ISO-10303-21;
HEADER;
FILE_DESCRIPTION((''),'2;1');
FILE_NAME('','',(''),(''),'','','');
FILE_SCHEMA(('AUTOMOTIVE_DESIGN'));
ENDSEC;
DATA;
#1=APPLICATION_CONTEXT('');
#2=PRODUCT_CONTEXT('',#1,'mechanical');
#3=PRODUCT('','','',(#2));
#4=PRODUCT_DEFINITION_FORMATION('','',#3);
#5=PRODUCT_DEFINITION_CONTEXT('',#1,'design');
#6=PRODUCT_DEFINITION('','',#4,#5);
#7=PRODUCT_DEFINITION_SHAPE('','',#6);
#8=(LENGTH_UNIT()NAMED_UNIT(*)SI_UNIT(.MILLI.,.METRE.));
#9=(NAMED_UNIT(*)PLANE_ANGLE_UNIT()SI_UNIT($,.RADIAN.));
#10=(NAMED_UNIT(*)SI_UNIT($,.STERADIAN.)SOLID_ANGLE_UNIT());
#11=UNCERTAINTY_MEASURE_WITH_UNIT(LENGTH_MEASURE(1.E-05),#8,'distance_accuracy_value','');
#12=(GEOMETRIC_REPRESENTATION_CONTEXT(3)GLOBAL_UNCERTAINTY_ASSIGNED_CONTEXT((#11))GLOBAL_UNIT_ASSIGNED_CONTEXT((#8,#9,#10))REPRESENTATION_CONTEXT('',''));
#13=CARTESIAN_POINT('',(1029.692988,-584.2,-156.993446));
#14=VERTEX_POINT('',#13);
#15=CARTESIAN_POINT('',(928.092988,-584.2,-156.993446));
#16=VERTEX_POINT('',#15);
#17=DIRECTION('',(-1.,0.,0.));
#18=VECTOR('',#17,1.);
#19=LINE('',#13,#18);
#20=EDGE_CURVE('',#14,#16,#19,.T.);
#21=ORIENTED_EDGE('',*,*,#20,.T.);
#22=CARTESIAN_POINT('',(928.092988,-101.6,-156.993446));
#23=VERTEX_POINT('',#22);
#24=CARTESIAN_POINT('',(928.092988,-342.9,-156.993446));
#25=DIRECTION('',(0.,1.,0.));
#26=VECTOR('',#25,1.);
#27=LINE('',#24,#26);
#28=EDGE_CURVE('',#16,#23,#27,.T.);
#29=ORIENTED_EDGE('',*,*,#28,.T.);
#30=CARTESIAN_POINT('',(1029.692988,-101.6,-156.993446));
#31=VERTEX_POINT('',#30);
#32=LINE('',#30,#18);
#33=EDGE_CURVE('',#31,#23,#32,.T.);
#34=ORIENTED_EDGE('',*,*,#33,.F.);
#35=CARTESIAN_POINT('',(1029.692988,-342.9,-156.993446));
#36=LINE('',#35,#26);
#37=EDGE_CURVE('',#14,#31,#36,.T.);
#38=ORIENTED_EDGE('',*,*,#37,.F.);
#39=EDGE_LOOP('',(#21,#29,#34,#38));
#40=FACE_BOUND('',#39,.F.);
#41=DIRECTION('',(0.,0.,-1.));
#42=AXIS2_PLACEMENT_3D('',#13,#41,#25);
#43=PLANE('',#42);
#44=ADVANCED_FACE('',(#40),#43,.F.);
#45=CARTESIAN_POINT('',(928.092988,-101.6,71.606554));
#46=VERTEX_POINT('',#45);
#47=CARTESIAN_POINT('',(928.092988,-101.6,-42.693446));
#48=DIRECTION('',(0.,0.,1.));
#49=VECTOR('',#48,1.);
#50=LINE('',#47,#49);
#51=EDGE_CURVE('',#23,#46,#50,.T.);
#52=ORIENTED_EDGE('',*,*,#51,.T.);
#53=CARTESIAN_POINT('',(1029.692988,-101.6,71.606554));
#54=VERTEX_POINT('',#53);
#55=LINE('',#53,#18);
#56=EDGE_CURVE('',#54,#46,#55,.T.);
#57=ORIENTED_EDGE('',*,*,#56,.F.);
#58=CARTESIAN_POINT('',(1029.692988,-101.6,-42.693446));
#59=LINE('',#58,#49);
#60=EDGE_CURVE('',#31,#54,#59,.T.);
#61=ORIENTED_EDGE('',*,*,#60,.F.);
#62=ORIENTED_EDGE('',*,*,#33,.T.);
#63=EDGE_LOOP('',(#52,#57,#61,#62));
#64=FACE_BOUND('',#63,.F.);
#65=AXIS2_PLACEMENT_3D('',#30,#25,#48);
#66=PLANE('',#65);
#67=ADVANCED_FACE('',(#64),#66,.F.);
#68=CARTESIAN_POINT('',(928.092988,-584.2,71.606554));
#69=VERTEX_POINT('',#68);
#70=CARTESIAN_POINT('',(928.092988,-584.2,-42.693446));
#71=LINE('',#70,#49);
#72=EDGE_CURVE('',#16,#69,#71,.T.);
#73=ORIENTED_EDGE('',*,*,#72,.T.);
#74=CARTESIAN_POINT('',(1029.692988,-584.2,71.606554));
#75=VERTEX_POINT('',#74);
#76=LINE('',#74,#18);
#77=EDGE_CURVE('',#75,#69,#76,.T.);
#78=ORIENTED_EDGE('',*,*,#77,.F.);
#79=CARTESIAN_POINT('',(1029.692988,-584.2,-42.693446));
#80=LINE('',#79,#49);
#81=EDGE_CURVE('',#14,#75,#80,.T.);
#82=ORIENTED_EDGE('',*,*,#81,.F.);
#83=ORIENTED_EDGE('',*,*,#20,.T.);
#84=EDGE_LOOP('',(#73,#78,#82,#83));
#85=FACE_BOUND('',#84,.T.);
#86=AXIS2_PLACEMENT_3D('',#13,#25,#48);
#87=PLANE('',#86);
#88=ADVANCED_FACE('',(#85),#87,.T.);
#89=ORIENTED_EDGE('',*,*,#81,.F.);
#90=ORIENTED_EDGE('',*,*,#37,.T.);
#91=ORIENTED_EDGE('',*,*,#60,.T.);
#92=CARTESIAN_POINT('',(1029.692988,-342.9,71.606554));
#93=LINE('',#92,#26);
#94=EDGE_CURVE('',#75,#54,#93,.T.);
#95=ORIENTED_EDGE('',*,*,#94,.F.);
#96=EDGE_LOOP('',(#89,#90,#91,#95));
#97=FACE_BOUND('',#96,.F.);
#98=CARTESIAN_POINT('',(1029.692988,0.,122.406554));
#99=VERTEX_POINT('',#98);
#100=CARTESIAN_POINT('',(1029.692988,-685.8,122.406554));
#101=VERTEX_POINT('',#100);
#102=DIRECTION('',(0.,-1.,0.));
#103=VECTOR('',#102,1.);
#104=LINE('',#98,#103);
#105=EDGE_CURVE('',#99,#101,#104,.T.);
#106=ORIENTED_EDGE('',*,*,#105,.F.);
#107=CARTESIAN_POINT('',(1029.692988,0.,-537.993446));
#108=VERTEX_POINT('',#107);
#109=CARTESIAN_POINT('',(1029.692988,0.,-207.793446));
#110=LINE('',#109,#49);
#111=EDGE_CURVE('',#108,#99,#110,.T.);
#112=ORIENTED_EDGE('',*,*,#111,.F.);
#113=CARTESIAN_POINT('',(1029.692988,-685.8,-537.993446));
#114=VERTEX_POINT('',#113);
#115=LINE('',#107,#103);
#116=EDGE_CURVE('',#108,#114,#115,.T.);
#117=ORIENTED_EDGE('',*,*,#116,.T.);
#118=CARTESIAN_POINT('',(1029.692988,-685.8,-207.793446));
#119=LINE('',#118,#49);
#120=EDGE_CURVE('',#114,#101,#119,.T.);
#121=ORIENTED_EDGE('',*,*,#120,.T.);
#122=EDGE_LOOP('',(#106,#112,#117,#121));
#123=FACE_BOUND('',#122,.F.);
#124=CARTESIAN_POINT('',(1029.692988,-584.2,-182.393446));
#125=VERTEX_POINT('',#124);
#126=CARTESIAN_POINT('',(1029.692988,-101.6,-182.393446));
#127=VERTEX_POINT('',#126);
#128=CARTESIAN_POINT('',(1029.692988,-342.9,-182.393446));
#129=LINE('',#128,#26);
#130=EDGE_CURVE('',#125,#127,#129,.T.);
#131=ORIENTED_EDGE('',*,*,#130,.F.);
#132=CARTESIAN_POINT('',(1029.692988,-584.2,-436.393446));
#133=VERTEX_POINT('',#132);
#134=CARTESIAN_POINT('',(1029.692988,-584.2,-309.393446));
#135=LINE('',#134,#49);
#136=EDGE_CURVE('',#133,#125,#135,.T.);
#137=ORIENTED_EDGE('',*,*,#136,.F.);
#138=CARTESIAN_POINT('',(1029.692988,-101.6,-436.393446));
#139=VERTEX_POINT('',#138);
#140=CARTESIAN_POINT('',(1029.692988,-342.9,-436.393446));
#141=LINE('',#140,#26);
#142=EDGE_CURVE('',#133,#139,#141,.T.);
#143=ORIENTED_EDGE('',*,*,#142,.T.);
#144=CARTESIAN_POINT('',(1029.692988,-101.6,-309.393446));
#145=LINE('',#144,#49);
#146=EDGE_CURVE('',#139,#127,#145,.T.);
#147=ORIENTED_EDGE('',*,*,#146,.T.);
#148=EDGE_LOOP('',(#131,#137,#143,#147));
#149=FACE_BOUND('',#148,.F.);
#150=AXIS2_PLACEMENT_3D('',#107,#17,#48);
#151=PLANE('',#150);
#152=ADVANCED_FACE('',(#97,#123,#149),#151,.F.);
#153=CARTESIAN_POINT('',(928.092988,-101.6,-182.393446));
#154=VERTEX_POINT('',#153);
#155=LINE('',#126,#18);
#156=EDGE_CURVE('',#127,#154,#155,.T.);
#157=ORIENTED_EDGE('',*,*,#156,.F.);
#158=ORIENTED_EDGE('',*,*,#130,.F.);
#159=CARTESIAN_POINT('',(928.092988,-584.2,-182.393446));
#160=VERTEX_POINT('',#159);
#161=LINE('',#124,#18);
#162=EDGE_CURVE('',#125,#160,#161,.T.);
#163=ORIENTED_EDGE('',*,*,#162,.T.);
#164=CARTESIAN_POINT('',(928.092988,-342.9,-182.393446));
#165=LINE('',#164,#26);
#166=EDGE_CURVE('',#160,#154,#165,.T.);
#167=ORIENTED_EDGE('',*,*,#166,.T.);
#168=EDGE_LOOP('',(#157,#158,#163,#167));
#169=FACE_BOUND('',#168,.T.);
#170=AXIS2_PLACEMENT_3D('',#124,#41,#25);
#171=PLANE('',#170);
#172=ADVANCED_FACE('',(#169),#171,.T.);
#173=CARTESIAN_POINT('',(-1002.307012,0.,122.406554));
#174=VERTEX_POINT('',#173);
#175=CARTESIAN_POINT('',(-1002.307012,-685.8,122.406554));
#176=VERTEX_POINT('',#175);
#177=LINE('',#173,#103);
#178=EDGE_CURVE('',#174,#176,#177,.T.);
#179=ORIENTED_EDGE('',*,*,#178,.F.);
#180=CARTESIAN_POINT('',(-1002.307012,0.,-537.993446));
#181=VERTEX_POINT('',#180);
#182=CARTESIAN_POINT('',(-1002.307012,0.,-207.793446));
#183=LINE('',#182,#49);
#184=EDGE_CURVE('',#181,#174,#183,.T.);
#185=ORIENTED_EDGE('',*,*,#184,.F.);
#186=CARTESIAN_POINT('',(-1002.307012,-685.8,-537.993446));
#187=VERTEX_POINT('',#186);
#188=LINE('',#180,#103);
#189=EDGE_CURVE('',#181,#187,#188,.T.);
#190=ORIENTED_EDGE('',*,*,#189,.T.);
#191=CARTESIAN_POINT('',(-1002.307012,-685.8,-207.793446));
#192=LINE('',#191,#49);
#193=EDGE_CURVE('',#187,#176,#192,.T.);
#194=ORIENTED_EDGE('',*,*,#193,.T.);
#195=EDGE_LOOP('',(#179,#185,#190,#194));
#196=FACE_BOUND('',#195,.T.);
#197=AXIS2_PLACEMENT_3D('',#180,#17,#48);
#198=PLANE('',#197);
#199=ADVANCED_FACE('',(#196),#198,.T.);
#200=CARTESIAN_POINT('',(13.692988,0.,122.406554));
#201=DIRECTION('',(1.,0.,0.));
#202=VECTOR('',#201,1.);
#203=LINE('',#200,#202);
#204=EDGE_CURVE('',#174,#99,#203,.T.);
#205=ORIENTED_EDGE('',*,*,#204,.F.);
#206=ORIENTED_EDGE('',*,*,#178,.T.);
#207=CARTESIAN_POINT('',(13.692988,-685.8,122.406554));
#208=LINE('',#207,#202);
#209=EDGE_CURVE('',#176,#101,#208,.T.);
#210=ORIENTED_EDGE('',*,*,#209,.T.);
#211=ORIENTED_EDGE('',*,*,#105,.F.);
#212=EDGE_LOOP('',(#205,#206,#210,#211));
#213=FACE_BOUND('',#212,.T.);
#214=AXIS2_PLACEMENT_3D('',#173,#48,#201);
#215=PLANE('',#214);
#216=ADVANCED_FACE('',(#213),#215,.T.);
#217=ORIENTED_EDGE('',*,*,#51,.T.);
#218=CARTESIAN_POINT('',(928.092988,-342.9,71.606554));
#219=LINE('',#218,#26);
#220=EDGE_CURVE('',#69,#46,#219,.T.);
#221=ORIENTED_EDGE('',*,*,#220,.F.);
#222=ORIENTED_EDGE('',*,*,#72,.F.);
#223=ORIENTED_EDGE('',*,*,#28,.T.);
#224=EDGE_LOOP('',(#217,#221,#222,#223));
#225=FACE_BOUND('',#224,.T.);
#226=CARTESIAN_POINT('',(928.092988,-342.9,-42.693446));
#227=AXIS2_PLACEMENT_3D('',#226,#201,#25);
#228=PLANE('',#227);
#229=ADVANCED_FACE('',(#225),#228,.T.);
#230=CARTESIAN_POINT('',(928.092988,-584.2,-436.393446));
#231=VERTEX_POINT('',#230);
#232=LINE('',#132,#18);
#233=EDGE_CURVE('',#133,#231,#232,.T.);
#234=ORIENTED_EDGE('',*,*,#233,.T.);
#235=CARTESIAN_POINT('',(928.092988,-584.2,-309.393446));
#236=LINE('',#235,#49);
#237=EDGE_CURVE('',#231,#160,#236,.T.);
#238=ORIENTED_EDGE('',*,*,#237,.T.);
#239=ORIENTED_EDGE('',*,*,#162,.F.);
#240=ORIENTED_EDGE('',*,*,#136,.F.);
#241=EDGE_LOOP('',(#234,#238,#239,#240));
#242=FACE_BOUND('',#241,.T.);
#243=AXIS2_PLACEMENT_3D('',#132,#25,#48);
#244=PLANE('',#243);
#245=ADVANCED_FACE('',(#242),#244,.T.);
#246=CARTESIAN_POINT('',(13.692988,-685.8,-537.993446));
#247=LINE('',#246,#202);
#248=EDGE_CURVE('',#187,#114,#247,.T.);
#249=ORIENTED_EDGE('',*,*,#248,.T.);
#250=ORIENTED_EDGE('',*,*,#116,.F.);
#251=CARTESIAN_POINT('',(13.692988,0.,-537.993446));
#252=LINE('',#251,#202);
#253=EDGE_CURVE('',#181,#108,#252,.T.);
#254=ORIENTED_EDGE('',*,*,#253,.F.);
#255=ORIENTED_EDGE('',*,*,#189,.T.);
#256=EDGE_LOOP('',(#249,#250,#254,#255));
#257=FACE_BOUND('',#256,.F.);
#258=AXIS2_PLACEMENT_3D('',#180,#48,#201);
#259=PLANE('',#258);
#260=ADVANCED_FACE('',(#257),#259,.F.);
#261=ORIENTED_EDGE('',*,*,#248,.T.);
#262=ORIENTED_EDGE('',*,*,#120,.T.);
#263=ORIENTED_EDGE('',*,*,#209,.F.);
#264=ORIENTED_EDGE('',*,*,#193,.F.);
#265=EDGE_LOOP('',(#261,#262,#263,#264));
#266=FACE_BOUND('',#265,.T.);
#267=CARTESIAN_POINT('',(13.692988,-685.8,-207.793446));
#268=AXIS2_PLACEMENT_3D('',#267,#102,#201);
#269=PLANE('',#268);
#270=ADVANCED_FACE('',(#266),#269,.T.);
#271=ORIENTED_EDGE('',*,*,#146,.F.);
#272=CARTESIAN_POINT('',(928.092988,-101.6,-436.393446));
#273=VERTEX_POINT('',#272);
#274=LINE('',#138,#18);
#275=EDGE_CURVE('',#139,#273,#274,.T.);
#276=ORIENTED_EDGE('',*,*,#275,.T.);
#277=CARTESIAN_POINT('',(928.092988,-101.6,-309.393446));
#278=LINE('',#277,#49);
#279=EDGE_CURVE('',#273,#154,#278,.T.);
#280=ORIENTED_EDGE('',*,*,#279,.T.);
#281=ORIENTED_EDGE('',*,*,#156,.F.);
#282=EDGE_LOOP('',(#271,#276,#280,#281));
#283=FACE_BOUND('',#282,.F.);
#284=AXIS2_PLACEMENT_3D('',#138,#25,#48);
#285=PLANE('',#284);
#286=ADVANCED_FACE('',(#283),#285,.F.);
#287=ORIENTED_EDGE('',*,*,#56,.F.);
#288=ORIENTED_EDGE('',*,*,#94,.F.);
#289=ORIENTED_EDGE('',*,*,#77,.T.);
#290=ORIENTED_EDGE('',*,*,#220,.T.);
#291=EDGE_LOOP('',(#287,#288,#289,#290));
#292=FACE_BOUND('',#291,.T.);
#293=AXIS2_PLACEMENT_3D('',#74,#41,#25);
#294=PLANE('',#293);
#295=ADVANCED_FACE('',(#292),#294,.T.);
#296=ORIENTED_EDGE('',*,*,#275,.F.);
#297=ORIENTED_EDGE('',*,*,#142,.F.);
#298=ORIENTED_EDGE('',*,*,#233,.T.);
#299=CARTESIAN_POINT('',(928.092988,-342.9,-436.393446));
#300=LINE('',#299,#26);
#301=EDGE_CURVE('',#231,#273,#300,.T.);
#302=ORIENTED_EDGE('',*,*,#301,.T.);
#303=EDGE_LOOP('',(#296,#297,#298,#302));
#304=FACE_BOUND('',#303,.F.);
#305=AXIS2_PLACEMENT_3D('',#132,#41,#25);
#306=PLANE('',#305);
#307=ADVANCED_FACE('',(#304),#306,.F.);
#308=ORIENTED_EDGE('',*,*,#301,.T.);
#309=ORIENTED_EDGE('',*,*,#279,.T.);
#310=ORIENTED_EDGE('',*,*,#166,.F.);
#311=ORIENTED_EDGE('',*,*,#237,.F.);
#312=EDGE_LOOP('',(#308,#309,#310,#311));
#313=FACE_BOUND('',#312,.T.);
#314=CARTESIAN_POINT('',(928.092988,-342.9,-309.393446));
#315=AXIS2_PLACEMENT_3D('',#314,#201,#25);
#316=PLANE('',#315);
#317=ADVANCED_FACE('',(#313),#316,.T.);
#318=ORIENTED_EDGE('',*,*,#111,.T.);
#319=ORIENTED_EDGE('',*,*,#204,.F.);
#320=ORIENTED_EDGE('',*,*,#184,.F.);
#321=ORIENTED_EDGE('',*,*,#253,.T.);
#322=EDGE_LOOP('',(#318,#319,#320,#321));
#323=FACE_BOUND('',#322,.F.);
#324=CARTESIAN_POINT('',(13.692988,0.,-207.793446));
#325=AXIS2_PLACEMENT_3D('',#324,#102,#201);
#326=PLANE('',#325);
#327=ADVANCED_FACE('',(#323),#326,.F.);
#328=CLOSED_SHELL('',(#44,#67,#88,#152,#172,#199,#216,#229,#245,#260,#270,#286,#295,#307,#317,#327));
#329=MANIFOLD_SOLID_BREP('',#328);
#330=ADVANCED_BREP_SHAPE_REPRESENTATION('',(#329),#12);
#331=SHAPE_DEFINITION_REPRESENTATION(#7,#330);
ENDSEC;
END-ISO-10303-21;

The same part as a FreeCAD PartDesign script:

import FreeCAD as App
import Part
import Sketcher
Q = App.Units.Quantity

doc = App.newDocument("Part")
params = doc.addObject("Spreadsheet::Sheet", "Params")
for row, (alias, value) in enumerate([
    ("sketch1_width", "80 in"),
    ("sketch1_height", "26 in"),
    ("pad1_length", "27 in"),
    ("sketch2_width", "19 in"),
    ("sketch2_height", "9 in"),
    ("sketch2_height2", "10 in"),
    ("pocket1_length", "4 in"),
    ("sketch3_width", "19 in"),
    ("sketch3_height", "10 in"),
    ("pad2_length", "4 in"),
], start=1):
    params.set(f"A{row}", alias)
    params.set(f"B{row}", "=" + value)
    params.setAlias(f"B{row}", alias)

body = doc.addObject("PartDesign::Body", "Body")

sketch1 = body.newObject("Sketcher::SketchObject", "Sketch")
sketch1.AttachmentSupport = (doc.getObject("XZ_Plane"), [""])
sketch1.MapMode = "FlatFace"
sketch1.addGeometry([
    Part.LineSegment(App.Vector(-1002.307012, 122.406554, 0), App.Vector(-1002.307012, -537.993446, 0)),
    Part.LineSegment(App.Vector(-1002.307012, -537.993446, 0), App.Vector(1029.692988, -537.993446, 0)),
    Part.LineSegment(App.Vector(1029.692988, -537.993446, 0), App.Vector(1029.692988, 122.406554, 0)),
    Part.LineSegment(App.Vector(1029.692988, 122.406554, 0), App.Vector(-1002.307012, 122.406554, 0)),
], False)
sketch1.addConstraint([
    Sketcher.Constraint("Coincident", 0, 2, 1, 1),
    Sketcher.Constraint("Coincident", 1, 2, 2, 1),
    Sketcher.Constraint("Coincident", 2, 2, 3, 1),
    Sketcher.Constraint("Coincident", 3, 2, 0, 1),
    Sketcher.Constraint("Vertical", 0),
    Sketcher.Constraint("Horizontal", 1),
    Sketcher.Constraint("Vertical", 2),
    Sketcher.Constraint("Horizontal", 3),
    Sketcher.Constraint("DistanceX", 1, 1, 1, 2, Q("80 in")),
    Sketcher.Constraint("DistanceY", 0, 2, 0, 1, Q("26 in")),
    Sketcher.Constraint("DistanceX", 0, 2, -1, 1, Q("1002.307012 mm")),
    Sketcher.Constraint("DistanceY", 0, 2, -1, 1, Q("537.993446 mm")),
])
sketch1.setExpression("Constraints[8]", "Params.sketch1_width")
sketch1.setExpression("Constraints[9]", "Params.sketch1_height")
pad1 = body.newObject("PartDesign::Pad", "Pad")
pad1.Profile = sketch1
pad1.setExpression("Length", "Params.pad1_length")

sketch2 = body.newObject("Sketcher::SketchObject", "Sketch001")
sketch2.AttachmentSupport = (doc.getObject("YZ_Plane"), [""])
sketch2.MapMode = "FlatFace"
sketch2.AttachmentOffset = App.Placement(App.Vector(0, 0, 1029.692988), App.Rotation())
sketch2.addGeometry([
    Part.LineSegment(App.Vector(-584.2, 71.606554, 0), App.Vector(-584.2, -156.993446, 0)),
    Part.LineSegment(App.Vector(-584.2, -156.993446, 0), App.Vector(-101.6, -156.993446, 0)),
    Part.LineSegment(App.Vector(-101.6, -156.993446, 0), App.Vector(-101.6, 71.606554, 0)),
    Part.LineSegment(App.Vector(-101.6, 71.606554, 0), App.Vector(-584.2, 71.606554, 0)),
    Part.LineSegment(App.Vector(-584.2, -182.393446, 0), App.Vector(-584.2, -436.393446, 0)),
    Part.LineSegment(App.Vector(-584.2, -436.393446, 0), App.Vector(-101.6, -436.393446, 0)),
    Part.LineSegment(App.Vector(-101.6, -436.393446, 0), App.Vector(-101.6, -182.393446, 0)),
    Part.LineSegment(App.Vector(-101.6, -182.393446, 0), App.Vector(-584.2, -182.393446, 0)),
], False)
sketch2.addConstraint([
    Sketcher.Constraint("Coincident", 0, 2, 1, 1),
    Sketcher.Constraint("Coincident", 1, 2, 2, 1),
    Sketcher.Constraint("Coincident", 2, 2, 3, 1),
    Sketcher.Constraint("Coincident", 3, 2, 0, 1),
    Sketcher.Constraint("Coincident", 4, 2, 5, 1),
    Sketcher.Constraint("Coincident", 5, 2, 6, 1),
    Sketcher.Constraint("Coincident", 6, 2, 7, 1),
    Sketcher.Constraint("Coincident", 7, 2, 4, 1),
    Sketcher.Constraint("Vertical", 0),
    Sketcher.Constraint("Horizontal", 1),
    Sketcher.Constraint("Vertical", 2),
    Sketcher.Constraint("Horizontal", 3),
    Sketcher.Constraint("Vertical", 4),
    Sketcher.Constraint("Horizontal", 5),
    Sketcher.Constraint("Vertical", 6),
    Sketcher.Constraint("Horizontal", 7),
    Sketcher.Constraint("Vertical", 3, 2, 4, 2),
    Sketcher.Constraint("Vertical", 2, 2, 5, 2),
    Sketcher.Constraint("DistanceX", 1, 1, 1, 2, Q("19 in")),
    Sketcher.Constraint("DistanceY", 0, 2, 0, 1, Q("9 in")),
    Sketcher.Constraint("DistanceY", 4, 2, 4, 1, Q("10 in")),
    Sketcher.Constraint("DistanceX", 0, 2, -1, 1, Q("23 in")),
    Sketcher.Constraint("DistanceY", 4, 2, 0, 2, Q("11 in")),
    Sketcher.Constraint("DistanceY", 0, 2, -1, 1, Q("156.993446 mm")),
])
sketch2.setExpression("Constraints[18]", "Params.sketch2_width")
sketch2.setExpression("Constraints[19]", "Params.sketch2_height")
sketch2.setExpression("Constraints[20]", "Params.sketch2_height2")
pocket1 = body.newObject("PartDesign::Pocket", "Pocket")
pocket1.Profile = sketch2
pocket1.setExpression("Length", "Params.pocket1_length")

sketch3 = body.newObject("Sketcher::SketchObject", "Sketch002")
sketch3.AttachmentSupport = (doc.getObject("YZ_Plane"), [""])
sketch3.MapMode = "FlatFace"
sketch3.AttachmentOffset = App.Placement(App.Vector(0, 0, -1002.307012), App.Rotation())
sketch3.addGeometry([
    Part.LineSegment(App.Vector(-101.6, 71.606554, 0), App.Vector(-101.6, -182.393446, 0)),
    Part.LineSegment(App.Vector(-101.6, -182.393446, 0), App.Vector(-584.2, -182.393446, 0)),
    Part.LineSegment(App.Vector(-584.2, -182.393446, 0), App.Vector(-584.2, 71.606554, 0)),
    Part.LineSegment(App.Vector(-584.2, 71.606554, 0), App.Vector(-101.6, 71.606554, 0)),
    Part.LineSegment(App.Vector(-101.6, -207.793446, 0), App.Vector(-101.6, -461.793446, 0)),
    Part.LineSegment(App.Vector(-101.6, -461.793446, 0), App.Vector(-584.2, -461.793446, 0)),
    Part.LineSegment(App.Vector(-584.2, -461.793446, 0), App.Vector(-584.2, -207.793446, 0)),
    Part.LineSegment(App.Vector(-584.2, -207.793446, 0), App.Vector(-101.6, -207.793446, 0)),
], False)
sketch3.addConstraint([
    Sketcher.Constraint("Coincident", 0, 2, 1, 1),
    Sketcher.Constraint("Coincident", 1, 2, 2, 1),
    Sketcher.Constraint("Coincident", 2, 2, 3, 1),
    Sketcher.Constraint("Coincident", 3, 2, 0, 1),
    Sketcher.Constraint("Coincident", 4, 2, 5, 1),
    Sketcher.Constraint("Coincident", 5, 2, 6, 1),
    Sketcher.Constraint("Coincident", 6, 2, 7, 1),
    Sketcher.Constraint("Coincident", 7, 2, 4, 1),
    Sketcher.Constraint("Vertical", 0),
    Sketcher.Constraint("Horizontal", 1),
    Sketcher.Constraint("Vertical", 2),
    Sketcher.Constraint("Horizontal", 3),
    Sketcher.Constraint("Vertical", 4),
    Sketcher.Constraint("Horizontal", 5),
    Sketcher.Constraint("Vertical", 6),
    Sketcher.Constraint("Horizontal", 7),
    Sketcher.Constraint("Vertical", 3, 2, 4, 2),
    Sketcher.Constraint("Vertical", 2, 2, 5, 2),
    Sketcher.Constraint("Equal", 2, 4),
    Sketcher.Constraint("DistanceX", 1, 2, 1, 1, Q("19 in")),
    Sketcher.Constraint("DistanceY", 0, 2, 0, 1, Q("10 in")),
    Sketcher.Constraint("DistanceX", 0, 2, -1, 1, Q("4 in")),
    Sketcher.Constraint("DistanceY", 4, 2, 0, 2, Q("11 in")),
    Sketcher.Constraint("DistanceY", 0, 2, -1, 1, Q("182.393446 mm")),
])
sketch3.setExpression("Constraints[19]", "Params.sketch3_width")
sketch3.setExpression("Constraints[20]", "Params.sketch3_height")
pad2 = body.newObject("PartDesign::Pad", "Pad001")
pad2.Profile = sketch3
pad2.setExpression("Length", "Params.pad2_length")

doc.recompute()
